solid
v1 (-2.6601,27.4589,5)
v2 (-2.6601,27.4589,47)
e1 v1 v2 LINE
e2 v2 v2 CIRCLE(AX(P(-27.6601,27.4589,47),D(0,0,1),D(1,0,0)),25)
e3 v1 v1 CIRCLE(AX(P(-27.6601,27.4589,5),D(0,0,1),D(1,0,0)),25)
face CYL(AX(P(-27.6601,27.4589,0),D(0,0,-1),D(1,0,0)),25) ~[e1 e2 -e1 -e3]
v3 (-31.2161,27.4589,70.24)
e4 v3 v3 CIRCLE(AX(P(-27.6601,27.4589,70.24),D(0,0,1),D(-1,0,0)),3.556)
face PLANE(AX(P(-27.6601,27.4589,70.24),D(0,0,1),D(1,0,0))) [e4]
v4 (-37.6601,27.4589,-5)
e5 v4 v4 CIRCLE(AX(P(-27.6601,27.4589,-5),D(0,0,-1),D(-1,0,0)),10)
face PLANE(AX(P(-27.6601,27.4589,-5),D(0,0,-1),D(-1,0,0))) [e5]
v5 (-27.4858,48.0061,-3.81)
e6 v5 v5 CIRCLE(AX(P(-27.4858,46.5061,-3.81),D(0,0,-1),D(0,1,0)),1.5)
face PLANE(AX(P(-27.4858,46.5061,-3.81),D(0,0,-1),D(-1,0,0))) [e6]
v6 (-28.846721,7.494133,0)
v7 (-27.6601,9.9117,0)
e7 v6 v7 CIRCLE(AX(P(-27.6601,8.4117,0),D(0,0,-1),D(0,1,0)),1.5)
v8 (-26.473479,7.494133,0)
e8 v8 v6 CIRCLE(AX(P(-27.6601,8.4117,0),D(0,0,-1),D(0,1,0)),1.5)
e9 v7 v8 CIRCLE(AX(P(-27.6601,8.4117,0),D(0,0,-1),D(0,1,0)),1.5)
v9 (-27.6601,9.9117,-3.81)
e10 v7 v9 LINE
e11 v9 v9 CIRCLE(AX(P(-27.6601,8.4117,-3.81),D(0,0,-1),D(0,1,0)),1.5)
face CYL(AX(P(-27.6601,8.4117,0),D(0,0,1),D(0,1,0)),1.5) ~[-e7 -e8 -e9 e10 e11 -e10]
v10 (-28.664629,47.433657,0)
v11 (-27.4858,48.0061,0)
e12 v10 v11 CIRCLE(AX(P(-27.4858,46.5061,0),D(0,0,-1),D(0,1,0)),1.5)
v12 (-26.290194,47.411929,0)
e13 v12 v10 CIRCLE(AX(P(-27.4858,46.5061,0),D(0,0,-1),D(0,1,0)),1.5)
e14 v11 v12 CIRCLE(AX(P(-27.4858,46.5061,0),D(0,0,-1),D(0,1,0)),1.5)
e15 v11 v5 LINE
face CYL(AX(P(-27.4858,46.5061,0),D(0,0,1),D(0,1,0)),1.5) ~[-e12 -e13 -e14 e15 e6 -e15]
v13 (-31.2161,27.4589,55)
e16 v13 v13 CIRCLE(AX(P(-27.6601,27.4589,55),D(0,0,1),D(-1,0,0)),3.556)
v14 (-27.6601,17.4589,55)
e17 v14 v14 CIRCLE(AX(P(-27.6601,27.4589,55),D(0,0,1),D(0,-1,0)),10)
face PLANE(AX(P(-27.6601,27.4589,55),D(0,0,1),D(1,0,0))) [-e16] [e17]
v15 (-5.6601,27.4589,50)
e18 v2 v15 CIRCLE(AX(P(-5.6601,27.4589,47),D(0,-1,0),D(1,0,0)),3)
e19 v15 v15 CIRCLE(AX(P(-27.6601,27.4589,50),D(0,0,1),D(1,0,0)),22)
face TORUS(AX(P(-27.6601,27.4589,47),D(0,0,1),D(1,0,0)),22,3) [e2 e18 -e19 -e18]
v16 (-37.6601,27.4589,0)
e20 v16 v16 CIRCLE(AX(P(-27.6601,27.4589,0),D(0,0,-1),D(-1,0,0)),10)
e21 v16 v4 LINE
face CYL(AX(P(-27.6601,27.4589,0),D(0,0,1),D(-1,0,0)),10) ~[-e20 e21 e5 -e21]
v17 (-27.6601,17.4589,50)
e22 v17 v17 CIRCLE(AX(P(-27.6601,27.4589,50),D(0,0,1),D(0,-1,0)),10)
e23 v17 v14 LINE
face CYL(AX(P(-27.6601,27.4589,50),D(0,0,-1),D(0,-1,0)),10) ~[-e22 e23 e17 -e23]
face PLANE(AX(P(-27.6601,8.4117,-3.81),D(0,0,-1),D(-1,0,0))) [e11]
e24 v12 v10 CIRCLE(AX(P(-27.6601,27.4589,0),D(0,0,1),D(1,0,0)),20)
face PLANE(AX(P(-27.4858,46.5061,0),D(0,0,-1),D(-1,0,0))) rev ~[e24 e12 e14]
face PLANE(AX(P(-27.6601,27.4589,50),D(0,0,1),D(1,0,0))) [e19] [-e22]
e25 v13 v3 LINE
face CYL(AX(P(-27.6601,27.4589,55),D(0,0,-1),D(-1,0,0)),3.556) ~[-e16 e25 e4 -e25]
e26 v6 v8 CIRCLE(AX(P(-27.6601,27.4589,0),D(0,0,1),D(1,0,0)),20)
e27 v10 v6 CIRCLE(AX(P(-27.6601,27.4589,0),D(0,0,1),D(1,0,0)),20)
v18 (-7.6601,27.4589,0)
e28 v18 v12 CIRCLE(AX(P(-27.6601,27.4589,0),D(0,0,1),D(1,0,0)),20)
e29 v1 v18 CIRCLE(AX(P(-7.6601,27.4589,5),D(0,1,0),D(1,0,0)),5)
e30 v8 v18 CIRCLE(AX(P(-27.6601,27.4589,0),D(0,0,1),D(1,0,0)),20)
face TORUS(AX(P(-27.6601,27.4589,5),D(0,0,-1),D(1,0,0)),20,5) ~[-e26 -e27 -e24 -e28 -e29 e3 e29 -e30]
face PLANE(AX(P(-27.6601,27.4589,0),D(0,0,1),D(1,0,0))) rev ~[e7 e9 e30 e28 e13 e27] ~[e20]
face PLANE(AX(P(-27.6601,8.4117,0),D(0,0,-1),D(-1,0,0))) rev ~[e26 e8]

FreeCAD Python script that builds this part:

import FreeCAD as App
import Part
import Sketcher

V = App.Vector
Q = App.Units.Quantity


def edges_at(feature, points):
    """Names of the edges that pass closest to the given points."""
    edges = feature.Shape.Edges
    near = lambda p: min(range(len(edges)), key=lambda i: edges[i].distToShape(Part.Vertex(*p))[0])
    return sorted({f"Edge{near(p) + 1}" for p in points})

doc = App.newDocument("Part")
params = doc.addObject("Spreadsheet::Sheet", "Params")
for row, (alias, value) in enumerate([
    ("pad1_length", "1.9685039 in"),
    ("fillet_radius", "5 mm"),
    ("fillet2_radius", "0.1181102 in"),
    ("pad2_length", "5 mm"),
    ("pad3_length", "5 mm"),
    ("sketch4_diameter", "0.28 in"),
    ("pad4_length", "0.6 in"),
    ("pad5_length", "0.15 in"),
], start=1):
    params.set(f"A{row}", alias)
    params.set(f"B{row}", "=" + value)
    params.setAlias(f"B{row}", alias)

body = doc.addObject("PartDesign::Body", "Body")

# Sketch on XY plane
sketch1 = body.newObject("Sketcher::SketchObject", "Sketch")
sketch1.AttachmentSupport = (doc.getObject("XY_Plane"), [""])
sketch1.MapMode = "FlatFace"
sketch1.addGeometry(Part.Circle(V(-28, 27, 0), V(0, 0, 1), 25), False)
sketch1.addConstraint(Sketcher.Constraint("Diameter", 0, Q("1.9685 in")))
sketch1.addConstraint(Sketcher.Constraint("DistanceX", 0, 3, -1, 1, Q("27.66 mm")))
sketch1.addConstraint(Sketcher.Constraint("DistanceY", -1, 1, 0, 3, Q("27.459 mm")))
pad1 = body.newObject("PartDesign::Pad", "Pad")
pad1.Profile = sketch1
pad1.setExpression("Length", "Params.pad1_length")
doc.recompute()

fillet = body.newObject("PartDesign::Fillet", "Fillet")
fillet.Base = (pad1, edges_at(pad1, [(-52.66, 27.459, 0)]))
fillet.setExpression("Radius", "Params.fillet_radius")
doc.recompute()

fillet2 = body.newObject("PartDesign::Fillet", "Fillet001")
fillet2.Base = (fillet, edges_at(fillet, [(-52.66, 27.459, 50)]))
fillet2.setExpression("Radius", "Params.fillet2_radius")

# Sketch on XY plane
sketch2 = body.newObject("Sketcher::SketchObject", "Sketch001")
sketch2.AttachmentSupport = (doc.getObject("XY_Plane"), [""])
sketch2.MapMode = "FlatFace"
sketch2.AttachmentOffset = App.Placement(V(0, 0, 1.9685039 * 25.4), App.Rotation())
sketch2.addGeometry(Part.Circle(V(-28, 27, 0), V(0, 0, 1), 10), False)
sketch2.addConstraint(Sketcher.Constraint("Diameter", 0, Q("0.7874 in")))
sketch2.addConstraint(Sketcher.Constraint("DistanceX", 0, 3, -1, 1, Q("27.66 mm")))
sketch2.addConstraint(Sketcher.Constraint("DistanceY", -1, 1, 0, 3, Q("27.459 mm")))
pad2 = body.newObject("PartDesign::Pad", "Pad001")
pad2.Profile = sketch2
pad2.setExpression("Length", "Params.pad2_length")

# Sketch on XY plane
sketch3 = body.newObject("Sketcher::SketchObject", "Sketch002")
sketch3.AttachmentSupport = (doc.getObject("XY_Plane"), [""])
sketch3.MapMode = "FlatFace"
sketch3.addGeometry(Part.Circle(V(-28, 27, 0), V(0, 0, 1), 10), False)
sketch3.addConstraint(Sketcher.Constraint("Diameter", 0, Q("0.7874 in")))
sketch3.addConstraint(Sketcher.Constraint("DistanceX", 0, 3, -1, 1, Q("27.66 mm")))
sketch3.addConstraint(Sketcher.Constraint("DistanceY", -1, 1, 0, 3, Q("27.459 mm")))
pad3 = body.newObject("PartDesign::Pad", "Pad002")
pad3.Profile = sketch3
pad3.setExpression("Length", "Params.pad3_length")
pad3.Reversed = True

# Sketch on XY plane
sketch4 = body.newObject("Sketcher::SketchObject", "Sketch003")
sketch4.AttachmentSupport = (doc.getObject("XY_Plane"), [""])
sketch4.MapMode = "FlatFace"
sketch4.AttachmentOffset = App.Placement(V(0, 0, 55), App.Rotation())
sketch4.addGeometry(Part.Circle(V(-27.7, 27.5, 0), V(0, 0, 1), 3.6), False)
sketch4.addConstraint(Sketcher.Constraint("Diameter", 0, Q("0.28 in")))
sketch4.addConstraint(Sketcher.Constraint("DistanceX", 0, 3, -1, 1, Q("27.66 mm")))
sketch4.addConstraint(Sketcher.Constraint("DistanceY", -1, 1, 0, 3, Q("27.459 mm")))
sketch4.setExpression("Constraints[0]", "Params.sketch4_diameter")
pad4 = body.newObject("PartDesign::Pad", "Pad003")
pad4.Profile = sketch4
pad4.setExpression("Length", "Params.pad4_length")

# Sketch on XY plane
sketch5 = body.newObject("Sketcher::SketchObject", "Sketch004")
sketch5.AttachmentSupport = (doc.getObject("XY_Plane"), [""])
sketch5.MapMode = "FlatFace"
sketch5.addGeometry(Part.Circle(V(-27.7, 8.4, 0), V(0, 0, 1), 1.5), False)
sketch5.addGeometry(Part.Circle(V(-27.5, 46.5, 0), V(0, 0, 1), 1.5), False)
sketch5.addConstraint(Sketcher.Constraint("Equal", 0, 1))
sketch5.addConstraint(Sketcher.Constraint("Diameter", 0, Q("0.1181 in")))
sketch5.addConstraint(Sketcher.Constraint("DistanceX", 0, 3, -1, 1, Q("27.66 mm")))
sketch5.addConstraint(Sketcher.Constraint("DistanceY", -1, 1, 0, 3, Q("8.4117 mm")))
sketch5.addConstraint(Sketcher.Constraint("DistanceX", 1, 3, -1, 1, Q("27.4858 mm")))
sketch5.addConstraint(Sketcher.Constraint("DistanceY", -1, 1, 1, 3, Q("46.506 mm")))
pad5 = body.newObject("PartDesign::Pad", "Pad004")
pad5.Profile = sketch5
pad5.setExpression("Length", "Params.pad5_length")
pad5.Reversed = True

doc.recompute()
